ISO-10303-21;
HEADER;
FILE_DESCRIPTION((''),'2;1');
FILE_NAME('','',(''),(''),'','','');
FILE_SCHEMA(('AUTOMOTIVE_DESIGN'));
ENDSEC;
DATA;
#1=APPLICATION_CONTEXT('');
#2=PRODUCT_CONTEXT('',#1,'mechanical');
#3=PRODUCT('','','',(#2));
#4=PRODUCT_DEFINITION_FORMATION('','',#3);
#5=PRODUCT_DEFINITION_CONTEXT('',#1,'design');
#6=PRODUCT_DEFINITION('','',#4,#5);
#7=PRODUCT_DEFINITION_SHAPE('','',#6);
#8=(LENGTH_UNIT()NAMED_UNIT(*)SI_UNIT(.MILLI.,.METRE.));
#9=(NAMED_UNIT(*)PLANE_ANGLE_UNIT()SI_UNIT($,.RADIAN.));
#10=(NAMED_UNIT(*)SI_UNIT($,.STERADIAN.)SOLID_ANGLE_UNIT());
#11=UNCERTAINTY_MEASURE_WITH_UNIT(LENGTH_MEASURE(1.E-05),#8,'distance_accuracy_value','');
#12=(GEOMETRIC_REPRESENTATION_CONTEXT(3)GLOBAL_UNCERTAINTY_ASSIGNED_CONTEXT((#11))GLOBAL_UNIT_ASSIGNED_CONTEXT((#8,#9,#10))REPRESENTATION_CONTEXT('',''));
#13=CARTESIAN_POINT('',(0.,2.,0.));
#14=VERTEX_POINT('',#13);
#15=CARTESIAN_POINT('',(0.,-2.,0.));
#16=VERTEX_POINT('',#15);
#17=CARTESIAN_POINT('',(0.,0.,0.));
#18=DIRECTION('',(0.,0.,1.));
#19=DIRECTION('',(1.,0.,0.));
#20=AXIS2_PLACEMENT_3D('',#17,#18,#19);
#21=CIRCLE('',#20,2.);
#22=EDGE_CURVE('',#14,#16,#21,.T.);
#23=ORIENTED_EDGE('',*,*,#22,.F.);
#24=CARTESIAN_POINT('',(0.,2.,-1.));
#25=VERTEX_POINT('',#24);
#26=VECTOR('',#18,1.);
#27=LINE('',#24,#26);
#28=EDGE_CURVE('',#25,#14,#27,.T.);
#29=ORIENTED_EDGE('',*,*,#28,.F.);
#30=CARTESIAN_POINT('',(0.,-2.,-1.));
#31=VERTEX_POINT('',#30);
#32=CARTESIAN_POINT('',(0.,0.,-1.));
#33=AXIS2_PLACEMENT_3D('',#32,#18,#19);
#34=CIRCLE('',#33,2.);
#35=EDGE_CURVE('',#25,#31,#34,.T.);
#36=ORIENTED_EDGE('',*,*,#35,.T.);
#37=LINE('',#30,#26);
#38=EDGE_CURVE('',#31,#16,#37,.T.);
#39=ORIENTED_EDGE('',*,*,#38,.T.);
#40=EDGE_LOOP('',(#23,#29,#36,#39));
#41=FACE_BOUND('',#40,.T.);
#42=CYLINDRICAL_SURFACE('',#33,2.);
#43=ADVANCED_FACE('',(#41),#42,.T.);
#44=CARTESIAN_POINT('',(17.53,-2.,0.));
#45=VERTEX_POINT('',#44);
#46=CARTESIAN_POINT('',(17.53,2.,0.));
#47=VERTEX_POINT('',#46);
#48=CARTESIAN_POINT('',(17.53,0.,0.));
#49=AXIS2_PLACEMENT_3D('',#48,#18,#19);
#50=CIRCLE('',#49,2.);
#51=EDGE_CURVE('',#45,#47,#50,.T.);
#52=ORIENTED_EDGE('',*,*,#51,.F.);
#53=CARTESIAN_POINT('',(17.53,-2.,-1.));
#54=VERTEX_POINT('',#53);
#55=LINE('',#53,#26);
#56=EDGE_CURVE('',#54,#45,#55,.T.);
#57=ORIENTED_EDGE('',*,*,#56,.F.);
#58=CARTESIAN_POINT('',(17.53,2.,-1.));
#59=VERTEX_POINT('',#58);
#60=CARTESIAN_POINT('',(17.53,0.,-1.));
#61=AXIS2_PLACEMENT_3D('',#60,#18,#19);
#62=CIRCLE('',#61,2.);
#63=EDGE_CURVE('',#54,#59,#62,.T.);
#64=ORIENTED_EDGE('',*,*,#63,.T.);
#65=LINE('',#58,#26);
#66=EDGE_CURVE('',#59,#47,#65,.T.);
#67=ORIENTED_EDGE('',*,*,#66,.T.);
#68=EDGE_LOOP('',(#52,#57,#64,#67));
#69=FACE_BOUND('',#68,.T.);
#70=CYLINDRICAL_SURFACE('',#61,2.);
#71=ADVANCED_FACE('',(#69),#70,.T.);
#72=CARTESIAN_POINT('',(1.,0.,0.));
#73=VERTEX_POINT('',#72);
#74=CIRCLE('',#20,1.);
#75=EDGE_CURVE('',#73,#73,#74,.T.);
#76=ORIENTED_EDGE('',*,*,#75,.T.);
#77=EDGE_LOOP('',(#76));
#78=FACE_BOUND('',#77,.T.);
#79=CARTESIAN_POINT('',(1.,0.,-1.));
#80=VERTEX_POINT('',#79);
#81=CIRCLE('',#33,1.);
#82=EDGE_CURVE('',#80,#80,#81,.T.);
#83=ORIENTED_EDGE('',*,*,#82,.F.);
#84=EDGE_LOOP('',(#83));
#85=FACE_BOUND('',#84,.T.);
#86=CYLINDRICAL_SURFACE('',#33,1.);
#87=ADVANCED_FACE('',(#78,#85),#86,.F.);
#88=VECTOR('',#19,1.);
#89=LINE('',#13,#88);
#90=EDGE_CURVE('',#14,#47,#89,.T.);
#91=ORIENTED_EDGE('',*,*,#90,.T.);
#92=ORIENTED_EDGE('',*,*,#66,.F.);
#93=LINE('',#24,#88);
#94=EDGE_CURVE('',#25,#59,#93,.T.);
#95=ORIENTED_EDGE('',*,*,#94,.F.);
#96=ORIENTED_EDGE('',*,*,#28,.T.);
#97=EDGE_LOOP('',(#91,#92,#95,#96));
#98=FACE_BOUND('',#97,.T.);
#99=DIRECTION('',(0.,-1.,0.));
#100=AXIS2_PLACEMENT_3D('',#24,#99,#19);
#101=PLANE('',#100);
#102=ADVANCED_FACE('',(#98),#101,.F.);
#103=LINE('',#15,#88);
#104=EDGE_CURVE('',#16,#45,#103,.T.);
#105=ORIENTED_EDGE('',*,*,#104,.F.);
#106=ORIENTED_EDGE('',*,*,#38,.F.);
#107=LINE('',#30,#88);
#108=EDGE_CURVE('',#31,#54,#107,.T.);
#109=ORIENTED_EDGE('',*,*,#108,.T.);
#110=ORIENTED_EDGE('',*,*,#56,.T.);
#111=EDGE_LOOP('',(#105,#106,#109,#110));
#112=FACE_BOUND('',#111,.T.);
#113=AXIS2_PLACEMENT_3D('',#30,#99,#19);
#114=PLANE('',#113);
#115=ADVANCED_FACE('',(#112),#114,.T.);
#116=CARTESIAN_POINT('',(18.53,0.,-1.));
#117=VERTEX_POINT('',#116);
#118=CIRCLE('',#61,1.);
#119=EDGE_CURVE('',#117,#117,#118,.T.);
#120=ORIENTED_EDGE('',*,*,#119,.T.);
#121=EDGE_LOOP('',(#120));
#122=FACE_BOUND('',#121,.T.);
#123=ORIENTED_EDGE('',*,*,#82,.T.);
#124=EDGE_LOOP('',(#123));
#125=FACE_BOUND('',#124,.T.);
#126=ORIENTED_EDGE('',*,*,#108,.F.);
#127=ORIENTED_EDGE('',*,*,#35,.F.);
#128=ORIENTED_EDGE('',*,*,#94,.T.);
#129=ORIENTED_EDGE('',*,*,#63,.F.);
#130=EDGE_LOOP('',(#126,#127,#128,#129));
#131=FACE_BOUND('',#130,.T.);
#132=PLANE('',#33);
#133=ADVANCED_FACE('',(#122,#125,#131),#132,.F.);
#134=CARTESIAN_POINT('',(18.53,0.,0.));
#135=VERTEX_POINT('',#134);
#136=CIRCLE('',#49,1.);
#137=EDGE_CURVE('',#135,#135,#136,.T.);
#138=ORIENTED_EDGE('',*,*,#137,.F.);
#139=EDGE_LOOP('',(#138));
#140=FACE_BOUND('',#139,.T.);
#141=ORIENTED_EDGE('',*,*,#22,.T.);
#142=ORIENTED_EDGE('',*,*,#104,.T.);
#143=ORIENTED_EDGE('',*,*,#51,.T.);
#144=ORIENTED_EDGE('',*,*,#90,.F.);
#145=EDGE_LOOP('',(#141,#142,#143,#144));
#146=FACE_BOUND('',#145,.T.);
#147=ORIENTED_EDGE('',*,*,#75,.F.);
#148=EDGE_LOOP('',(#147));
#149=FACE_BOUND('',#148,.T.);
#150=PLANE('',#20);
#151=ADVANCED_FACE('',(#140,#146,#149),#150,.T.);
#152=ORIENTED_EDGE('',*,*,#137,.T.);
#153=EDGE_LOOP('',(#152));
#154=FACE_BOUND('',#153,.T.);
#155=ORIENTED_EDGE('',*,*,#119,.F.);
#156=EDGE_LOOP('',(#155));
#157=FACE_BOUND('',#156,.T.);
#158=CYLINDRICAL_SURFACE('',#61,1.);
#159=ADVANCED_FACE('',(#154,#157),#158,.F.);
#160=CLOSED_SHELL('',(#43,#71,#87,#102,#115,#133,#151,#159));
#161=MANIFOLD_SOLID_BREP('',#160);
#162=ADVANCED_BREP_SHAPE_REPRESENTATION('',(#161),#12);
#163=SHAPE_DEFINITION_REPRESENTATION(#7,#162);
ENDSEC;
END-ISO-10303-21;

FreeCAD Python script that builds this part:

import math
import FreeCAD as App
import Part
import Sketcher

V = App.Vector

doc = App.newDocument("Part")
body = doc.addObject("PartDesign::Body", "Body")

# Sketch on XY plane
sketch1 = body.newObject("Sketcher::SketchObject", "Sketch")
sketch1.AttachmentSupport = (doc.getObject("XY_Plane"), [""])
sketch1.MapMode = "FlatFace"
sketch1.addGeometry([
    Part.ArcOfCircle(Part.Circle(V(0, 0, 0), V(0, 0, 1), 2), math.radians(90), math.radians(270)),  # 0
    Part.LineSegment(V(0, -2, 0), V(17.5, -2, 0)),  # 1
    Part.ArcOfCircle(Part.Circle(V(17.5, 0, 0), V(0, 0, 1), 2), math.radians(-90), math.radians(90)),  # 2
    Part.LineSegment(V(17.5, 2, 0), V(0, 2, 0)),  # 3
    Part.Circle(V(0, 0, 0), V(0, 0, 1), 1),  # 4
    Part.Circle(V(17.5, 0, 0), V(0, 0, 1), 1),  # 5
], False)
sketch1.addConstraint([
    Sketcher.Constraint("Tangent", 0, 2, 1, 1),
    Sketcher.Constraint("Tangent", 1, 2, 2, 1),
    Sketcher.Constraint("Tangent", 2, 2, 3, 1),
    Sketcher.Constraint("Tangent", 3, 2, 0, 1),
    Sketcher.Constraint("Horizontal", 1),
    Sketcher.Constraint("Horizontal", 3),
    Sketcher.Constraint("Coincident", 0, 3, -1, 1),
    Sketcher.Constraint("Coincident", 4, 3, -1, 1),
    Sketcher.Constraint("Coincident", 5, 3, 2, 3),
    Sketcher.Constraint("Equal", 4, 5),
    Sketcher.Constraint("Diameter", 4, 2.0),
    Sketcher.Constraint("Radius", 0, 2.0),
    Sketcher.Constraint("DistanceX", 1, 1, 1, 2, 17.53),
])
pad1 = body.newObject("PartDesign::Pad", "Pad")
pad1.Profile = sketch1
pad1.Length = 1
pad1.Reversed = True

doc.recompute()
